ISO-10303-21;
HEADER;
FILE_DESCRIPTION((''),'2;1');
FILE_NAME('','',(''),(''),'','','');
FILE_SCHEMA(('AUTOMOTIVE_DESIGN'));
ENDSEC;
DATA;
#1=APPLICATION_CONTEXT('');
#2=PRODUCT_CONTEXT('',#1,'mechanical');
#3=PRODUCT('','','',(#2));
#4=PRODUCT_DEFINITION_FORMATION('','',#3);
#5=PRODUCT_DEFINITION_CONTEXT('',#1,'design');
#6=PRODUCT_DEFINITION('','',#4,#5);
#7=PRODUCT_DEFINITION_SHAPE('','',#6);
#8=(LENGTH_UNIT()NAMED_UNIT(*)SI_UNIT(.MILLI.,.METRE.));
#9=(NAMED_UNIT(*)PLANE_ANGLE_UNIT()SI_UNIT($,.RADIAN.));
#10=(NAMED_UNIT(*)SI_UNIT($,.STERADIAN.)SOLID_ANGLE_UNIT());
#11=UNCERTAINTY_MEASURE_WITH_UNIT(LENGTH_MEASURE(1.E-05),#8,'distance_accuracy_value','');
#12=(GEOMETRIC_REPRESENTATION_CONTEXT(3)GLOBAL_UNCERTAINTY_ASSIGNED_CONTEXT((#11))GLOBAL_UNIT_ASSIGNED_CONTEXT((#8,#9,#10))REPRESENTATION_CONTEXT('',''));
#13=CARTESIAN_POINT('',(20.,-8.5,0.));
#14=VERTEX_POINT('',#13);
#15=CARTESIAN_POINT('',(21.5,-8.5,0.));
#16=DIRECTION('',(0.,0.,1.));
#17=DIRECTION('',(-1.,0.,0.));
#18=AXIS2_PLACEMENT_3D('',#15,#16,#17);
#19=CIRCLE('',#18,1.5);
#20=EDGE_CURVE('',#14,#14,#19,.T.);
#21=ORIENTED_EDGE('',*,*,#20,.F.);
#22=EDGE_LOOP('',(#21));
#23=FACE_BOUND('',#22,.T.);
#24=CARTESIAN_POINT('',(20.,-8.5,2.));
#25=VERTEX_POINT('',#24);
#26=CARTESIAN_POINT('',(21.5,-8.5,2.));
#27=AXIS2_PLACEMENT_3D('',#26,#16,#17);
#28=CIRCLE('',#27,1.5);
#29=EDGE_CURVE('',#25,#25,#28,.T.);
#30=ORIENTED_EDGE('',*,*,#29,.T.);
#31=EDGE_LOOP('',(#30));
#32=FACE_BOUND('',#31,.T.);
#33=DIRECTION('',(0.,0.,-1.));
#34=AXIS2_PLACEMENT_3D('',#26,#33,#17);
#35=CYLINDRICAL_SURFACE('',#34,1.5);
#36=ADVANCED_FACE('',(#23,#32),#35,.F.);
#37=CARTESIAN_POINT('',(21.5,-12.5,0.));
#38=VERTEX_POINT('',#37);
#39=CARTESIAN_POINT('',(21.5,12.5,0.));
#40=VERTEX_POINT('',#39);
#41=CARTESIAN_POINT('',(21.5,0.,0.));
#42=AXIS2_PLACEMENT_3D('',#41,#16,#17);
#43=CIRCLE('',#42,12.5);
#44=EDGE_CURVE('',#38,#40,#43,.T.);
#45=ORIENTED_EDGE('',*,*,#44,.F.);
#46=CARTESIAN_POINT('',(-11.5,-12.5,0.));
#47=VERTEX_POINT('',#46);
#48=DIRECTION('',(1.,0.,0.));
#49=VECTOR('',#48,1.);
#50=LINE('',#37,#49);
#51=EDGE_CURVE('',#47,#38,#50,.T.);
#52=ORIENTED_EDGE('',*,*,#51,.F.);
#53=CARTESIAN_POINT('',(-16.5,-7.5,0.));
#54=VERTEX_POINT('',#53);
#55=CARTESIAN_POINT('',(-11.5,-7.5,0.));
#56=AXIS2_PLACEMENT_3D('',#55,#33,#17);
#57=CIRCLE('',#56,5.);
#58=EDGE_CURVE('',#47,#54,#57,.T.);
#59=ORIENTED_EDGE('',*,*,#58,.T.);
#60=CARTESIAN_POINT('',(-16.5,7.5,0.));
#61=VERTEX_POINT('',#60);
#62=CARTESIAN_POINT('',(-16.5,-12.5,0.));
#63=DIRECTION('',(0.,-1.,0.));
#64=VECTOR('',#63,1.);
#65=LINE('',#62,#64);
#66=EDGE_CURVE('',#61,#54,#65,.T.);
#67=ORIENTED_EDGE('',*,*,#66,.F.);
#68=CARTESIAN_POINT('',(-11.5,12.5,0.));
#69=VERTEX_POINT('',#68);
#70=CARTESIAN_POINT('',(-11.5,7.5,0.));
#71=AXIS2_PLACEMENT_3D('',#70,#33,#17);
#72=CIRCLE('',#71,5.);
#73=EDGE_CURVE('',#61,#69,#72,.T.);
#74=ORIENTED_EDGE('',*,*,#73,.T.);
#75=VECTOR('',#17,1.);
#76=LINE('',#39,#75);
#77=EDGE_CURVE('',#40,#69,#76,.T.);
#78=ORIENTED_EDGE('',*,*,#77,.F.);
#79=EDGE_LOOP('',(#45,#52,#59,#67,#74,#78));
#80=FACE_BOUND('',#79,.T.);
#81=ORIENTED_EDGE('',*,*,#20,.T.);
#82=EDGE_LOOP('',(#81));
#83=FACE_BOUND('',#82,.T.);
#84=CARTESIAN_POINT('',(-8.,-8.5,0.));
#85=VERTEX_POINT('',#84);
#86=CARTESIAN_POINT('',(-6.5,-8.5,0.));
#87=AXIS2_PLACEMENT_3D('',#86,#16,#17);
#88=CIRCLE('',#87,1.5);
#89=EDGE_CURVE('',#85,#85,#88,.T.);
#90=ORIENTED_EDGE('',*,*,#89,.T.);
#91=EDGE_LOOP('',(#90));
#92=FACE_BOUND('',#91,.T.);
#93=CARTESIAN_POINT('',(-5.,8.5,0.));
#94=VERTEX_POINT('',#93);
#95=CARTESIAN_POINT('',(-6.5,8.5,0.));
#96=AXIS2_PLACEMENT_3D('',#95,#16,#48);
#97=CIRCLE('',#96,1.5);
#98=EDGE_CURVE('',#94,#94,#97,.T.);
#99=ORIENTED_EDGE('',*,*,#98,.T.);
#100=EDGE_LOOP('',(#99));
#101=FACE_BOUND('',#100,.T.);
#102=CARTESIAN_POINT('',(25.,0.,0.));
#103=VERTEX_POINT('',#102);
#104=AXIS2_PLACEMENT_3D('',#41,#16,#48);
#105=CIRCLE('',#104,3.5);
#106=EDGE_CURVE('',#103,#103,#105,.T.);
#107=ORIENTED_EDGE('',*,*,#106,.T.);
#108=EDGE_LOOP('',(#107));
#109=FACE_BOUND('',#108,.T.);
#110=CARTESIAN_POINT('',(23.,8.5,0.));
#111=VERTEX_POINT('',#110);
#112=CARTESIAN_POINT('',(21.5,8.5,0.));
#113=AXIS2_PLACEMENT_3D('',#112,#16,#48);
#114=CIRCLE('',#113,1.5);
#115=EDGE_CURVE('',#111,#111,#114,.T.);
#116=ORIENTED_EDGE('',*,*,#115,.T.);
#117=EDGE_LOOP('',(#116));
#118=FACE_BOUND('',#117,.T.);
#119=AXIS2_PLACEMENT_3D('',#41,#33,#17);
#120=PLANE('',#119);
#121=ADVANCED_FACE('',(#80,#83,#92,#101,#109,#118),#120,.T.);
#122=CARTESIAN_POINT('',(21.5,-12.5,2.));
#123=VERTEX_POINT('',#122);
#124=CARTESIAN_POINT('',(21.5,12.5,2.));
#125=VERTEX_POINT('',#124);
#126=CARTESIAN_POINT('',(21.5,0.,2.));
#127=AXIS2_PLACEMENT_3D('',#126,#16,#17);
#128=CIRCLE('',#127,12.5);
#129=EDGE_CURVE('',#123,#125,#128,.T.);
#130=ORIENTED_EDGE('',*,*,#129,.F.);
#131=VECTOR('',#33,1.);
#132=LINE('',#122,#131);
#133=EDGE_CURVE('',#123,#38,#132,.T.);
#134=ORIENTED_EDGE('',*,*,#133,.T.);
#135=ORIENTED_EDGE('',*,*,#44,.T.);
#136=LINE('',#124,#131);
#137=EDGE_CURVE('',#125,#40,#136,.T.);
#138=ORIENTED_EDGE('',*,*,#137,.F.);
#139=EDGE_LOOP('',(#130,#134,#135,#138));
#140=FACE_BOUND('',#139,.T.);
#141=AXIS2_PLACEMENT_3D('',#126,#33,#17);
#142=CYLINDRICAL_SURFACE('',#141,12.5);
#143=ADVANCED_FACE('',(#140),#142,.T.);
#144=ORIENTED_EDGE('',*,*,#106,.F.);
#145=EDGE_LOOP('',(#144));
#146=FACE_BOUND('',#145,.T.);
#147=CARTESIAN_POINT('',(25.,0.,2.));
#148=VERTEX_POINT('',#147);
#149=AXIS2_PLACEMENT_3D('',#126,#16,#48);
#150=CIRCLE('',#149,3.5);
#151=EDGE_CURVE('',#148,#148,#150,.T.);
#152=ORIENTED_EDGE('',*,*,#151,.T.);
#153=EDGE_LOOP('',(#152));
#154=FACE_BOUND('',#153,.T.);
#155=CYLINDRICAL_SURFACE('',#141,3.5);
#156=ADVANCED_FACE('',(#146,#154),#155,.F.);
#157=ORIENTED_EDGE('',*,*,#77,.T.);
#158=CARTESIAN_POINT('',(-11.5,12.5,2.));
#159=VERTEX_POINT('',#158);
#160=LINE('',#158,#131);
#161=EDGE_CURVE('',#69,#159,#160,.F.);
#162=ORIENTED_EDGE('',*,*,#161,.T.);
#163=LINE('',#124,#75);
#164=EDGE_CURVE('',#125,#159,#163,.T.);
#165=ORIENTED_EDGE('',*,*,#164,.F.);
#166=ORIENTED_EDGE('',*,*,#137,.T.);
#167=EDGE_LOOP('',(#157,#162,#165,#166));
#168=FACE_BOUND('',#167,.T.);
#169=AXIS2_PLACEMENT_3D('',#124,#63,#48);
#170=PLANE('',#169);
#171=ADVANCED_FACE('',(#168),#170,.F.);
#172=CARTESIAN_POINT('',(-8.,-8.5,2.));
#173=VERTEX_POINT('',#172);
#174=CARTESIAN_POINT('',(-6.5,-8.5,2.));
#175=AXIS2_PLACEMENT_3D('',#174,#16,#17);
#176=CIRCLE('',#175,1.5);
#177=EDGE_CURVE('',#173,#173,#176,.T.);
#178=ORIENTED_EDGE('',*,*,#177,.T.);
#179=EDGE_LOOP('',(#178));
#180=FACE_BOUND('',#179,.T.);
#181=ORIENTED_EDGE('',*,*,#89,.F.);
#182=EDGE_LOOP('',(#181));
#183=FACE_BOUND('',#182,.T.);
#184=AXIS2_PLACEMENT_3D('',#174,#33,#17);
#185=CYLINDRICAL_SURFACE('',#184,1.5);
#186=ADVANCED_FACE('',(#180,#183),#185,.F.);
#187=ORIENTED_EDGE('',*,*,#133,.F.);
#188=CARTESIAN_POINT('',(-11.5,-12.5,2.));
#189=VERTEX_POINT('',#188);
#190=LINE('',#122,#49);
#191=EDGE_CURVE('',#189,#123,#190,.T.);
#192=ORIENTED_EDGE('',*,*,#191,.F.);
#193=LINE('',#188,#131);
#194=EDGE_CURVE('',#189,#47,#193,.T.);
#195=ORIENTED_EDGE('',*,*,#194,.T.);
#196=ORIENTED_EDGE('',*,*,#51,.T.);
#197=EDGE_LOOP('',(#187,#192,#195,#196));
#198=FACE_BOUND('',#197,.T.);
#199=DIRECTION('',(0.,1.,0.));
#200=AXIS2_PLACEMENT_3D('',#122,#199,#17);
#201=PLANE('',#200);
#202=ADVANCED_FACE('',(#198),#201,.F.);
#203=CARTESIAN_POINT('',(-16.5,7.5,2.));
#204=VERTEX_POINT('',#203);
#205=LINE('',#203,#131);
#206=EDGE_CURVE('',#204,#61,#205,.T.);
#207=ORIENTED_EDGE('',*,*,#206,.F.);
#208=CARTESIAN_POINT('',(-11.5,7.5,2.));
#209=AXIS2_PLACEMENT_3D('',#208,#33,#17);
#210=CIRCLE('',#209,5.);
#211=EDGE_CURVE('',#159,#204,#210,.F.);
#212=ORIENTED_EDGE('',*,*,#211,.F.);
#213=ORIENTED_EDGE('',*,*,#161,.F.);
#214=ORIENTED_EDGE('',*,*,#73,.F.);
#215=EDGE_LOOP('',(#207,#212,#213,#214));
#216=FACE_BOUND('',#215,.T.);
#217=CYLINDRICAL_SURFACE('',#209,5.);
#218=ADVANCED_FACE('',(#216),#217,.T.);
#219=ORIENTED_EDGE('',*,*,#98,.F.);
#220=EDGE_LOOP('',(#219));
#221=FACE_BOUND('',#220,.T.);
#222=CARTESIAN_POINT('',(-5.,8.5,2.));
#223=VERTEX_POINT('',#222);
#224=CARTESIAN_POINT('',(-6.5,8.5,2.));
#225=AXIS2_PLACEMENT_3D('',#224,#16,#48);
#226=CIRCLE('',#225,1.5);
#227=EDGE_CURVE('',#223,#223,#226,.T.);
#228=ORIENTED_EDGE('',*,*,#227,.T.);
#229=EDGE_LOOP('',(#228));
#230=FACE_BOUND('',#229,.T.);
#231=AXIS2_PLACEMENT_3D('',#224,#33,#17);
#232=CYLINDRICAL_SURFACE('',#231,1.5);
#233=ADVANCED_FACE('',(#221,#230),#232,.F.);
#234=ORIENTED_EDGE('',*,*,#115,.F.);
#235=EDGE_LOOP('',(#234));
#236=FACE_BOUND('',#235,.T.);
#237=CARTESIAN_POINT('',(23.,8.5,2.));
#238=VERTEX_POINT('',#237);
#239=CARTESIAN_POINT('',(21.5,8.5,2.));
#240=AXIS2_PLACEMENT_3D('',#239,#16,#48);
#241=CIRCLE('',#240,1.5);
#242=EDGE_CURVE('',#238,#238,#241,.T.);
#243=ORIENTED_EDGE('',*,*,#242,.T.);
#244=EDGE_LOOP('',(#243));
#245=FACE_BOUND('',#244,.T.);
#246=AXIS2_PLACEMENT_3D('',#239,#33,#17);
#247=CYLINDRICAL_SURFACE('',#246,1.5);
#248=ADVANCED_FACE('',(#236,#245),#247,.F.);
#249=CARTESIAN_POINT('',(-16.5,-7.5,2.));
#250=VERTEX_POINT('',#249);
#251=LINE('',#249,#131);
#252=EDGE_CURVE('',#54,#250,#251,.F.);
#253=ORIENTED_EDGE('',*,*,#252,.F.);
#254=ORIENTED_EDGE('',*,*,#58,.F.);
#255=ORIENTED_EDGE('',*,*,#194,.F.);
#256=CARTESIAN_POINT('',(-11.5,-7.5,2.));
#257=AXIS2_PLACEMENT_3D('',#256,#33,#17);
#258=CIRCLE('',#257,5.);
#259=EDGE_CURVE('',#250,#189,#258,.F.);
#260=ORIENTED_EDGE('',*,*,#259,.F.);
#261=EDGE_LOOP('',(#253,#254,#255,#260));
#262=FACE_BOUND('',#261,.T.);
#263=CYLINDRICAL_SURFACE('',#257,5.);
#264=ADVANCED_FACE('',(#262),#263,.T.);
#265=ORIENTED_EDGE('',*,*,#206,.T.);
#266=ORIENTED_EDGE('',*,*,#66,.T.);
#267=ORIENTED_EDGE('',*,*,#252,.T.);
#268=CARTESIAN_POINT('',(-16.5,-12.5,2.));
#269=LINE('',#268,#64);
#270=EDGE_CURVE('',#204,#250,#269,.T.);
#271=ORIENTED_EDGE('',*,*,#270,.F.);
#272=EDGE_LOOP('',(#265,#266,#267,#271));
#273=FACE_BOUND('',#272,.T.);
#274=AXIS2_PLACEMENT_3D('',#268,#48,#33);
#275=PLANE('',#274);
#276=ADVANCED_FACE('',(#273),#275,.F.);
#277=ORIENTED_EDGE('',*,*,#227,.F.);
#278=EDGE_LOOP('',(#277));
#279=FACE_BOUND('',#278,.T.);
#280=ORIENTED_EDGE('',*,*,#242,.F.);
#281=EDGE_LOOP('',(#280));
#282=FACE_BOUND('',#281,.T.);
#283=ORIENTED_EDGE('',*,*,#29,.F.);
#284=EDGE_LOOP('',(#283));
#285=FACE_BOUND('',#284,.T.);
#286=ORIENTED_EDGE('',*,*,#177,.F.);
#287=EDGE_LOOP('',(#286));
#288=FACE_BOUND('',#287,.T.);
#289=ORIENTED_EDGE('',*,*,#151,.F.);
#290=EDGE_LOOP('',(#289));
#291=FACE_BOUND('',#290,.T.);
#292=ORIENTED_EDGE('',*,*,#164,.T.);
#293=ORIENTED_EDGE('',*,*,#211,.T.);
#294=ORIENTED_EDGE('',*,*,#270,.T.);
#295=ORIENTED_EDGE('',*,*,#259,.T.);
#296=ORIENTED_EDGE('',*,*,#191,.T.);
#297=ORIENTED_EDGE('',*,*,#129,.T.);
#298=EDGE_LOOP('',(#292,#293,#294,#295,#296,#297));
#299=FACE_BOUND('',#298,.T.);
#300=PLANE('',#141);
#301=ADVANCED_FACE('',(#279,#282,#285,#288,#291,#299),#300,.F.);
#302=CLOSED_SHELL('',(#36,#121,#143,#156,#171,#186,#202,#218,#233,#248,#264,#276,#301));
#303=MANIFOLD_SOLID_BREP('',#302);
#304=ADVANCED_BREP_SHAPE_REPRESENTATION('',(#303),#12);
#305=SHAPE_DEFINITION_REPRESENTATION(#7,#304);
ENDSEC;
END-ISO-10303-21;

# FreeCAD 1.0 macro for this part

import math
import FreeCAD as App
import Part
import Sketcher


def edges_at(feature, points):
    """Names of the edges that pass closest to the given points."""
    edges = feature.Shape.Edges
    near = lambda p: min(range(len(edges)), key=lambda i: edges[i].distToShape(Part.Vertex(*p))[0])
    return sorted({f"Edge{near(p) + 1}" for p in points})

doc = App.newDocument("Part")
body = doc.addObject("PartDesign::Body", "Body")

# Sketch on XY plane
sketch1 = body.newObject("Sketcher::SketchObject", "Sketch")
sketch1.AttachmentSupport = (doc.getObject("XY_Plane"), [""])
sketch1.MapMode = "FlatFace"
sketch1.addGeometry(Part.LineSegment(App.Vector(-16.5, -12.5, 0), App.Vector(21.5, -12.5, 0)), False)
sketch1.addGeometry(Part.ArcOfCircle(Part.Circle(App.Vector(21.5, 0, 0), App.Vector(0, 0, 1), 12.5), math.radians(-90), math.radians(90)), False)
sketch1.addGeometry(Part.LineSegment(App.Vector(21.5, 12.5, 0), App.Vector(-16.5, 12.5, 0)), False)
sketch1.addGeometry(Part.LineSegment(App.Vector(-16.5, 12.5, 0), App.Vector(-16.5, -12.5, 0)), False)
sketch1.addGeometry(Part.Circle(App.Vector(21.5, -8.5, 0), App.Vector(0, 0, 1), 1.5), False)
sketch1.addGeometry(Part.Circle(App.Vector(-6.5, -8.5, 0), App.Vector(0, 0, 1), 1.5), False)
sketch1.addGeometry(Part.Circle(App.Vector(21.5, 0, 0), App.Vector(0, 0, 1), 3.5), False)
sketch1.addGeometry(Part.Circle(App.Vector(21.5, 8.5, 0), App.Vector(0, 0, 1), 1.5), False)
sketch1.addGeometry(Part.Circle(App.Vector(-6.5, 8.5, 0), App.Vector(0, 0, 1), 1.5), False)
sketch1.addConstraint(Sketcher.Constraint("Tangent", 0, 2, 1, 1))
sketch1.addConstraint(Sketcher.Constraint("Tangent", 1, 2, 2, 1))
sketch1.addConstraint(Sketcher.Constraint("Coincident", 2, 2, 3, 1))
sketch1.addConstraint(Sketcher.Constraint("Coincident", 3, 2, 0, 1))
sketch1.addConstraint(Sketcher.Constraint("Horizontal", 0))
sketch1.addConstraint(Sketcher.Constraint("Horizontal", 2))
sketch1.addConstraint(Sketcher.Constraint("Vertical", 3))
sketch1.addConstraint(Sketcher.Constraint("Coincident", 6, 3, 1, 3))
sketch1.addConstraint(Sketcher.Constraint("Equal", 4, 5))
sketch1.addConstraint(Sketcher.Constraint("Equal", 5, 7))
sketch1.addConstraint(Sketcher.Constraint("Equal", 7, 8))
sketch1.addConstraint(Sketcher.Constraint("Symmetric", 4, 3, 7, 3, -1))
sketch1.addConstraint(Sketcher.Constraint("Symmetric", 5, 3, 8, 3, -1))
sketch1.addConstraint(Sketcher.Constraint("PointOnObject", 1, 3, -1))
sketch1.addConstraint(Sketcher.Constraint("Horizontal", 4, 3, 5, 3))
sketch1.addConstraint(Sketcher.Constraint("Vertical", 1, 3, 4, 3))
sketch1.addConstraint(Sketcher.Constraint("Diameter", 4, 3.0))
sketch1.addConstraint(Sketcher.Constraint("Diameter", 6, 7.0))
sketch1.addConstraint(Sketcher.Constraint("Radius", 1, 12.5))
sketch1.addConstraint(Sketcher.Constraint("DistanceX", 0, 1, 0, 2, 38.0))
sketch1.addConstraint(Sketcher.Constraint("DistanceX", 5, 3, 4, 3, 28.0))
sketch1.addConstraint(Sketcher.Constraint("DistanceY", 4, 3, 7, 3, 17.0))
sketch1.addConstraint(Sketcher.Constraint("DistanceX", -1, 1, 1, 3, 21.5))
pad1 = body.newObject("PartDesign::Pad", "Pad")
pad1.Profile = sketch1
pad1.Length = 2
doc.recompute()

fillet = body.newObject("PartDesign::Fillet", "Fillet")
fillet.Base = (pad1, edges_at(pad1, [(-16.5, 12.5, 1), (-16.5, -12.5, 1)]))
fillet.Radius = 5

doc.recompute()
